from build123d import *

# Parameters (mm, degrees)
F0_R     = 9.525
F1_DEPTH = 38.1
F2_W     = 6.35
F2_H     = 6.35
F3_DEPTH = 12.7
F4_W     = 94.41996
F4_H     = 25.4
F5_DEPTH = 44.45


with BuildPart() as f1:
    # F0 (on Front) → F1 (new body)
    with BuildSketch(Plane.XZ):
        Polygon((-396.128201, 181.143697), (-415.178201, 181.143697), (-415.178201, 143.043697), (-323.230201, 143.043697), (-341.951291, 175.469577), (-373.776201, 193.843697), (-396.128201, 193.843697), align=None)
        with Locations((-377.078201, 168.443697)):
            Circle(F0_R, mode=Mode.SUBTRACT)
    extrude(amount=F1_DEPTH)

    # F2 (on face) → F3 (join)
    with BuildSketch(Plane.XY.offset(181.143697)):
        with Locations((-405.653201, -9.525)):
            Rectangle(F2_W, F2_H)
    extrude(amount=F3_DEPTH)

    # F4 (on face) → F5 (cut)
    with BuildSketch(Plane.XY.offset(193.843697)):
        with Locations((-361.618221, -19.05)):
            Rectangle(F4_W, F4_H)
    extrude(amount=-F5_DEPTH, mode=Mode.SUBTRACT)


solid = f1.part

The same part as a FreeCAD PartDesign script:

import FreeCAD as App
import Part
import Sketcher

V = App.Vector
Q = App.Units.Quantity


def add_polygon(sketch, points):
    """Adds a closed chain of lines whose ends are joined by coincident constraints."""
    first, n = sketch.GeometryCount, len(points)
    for a, b in zip(points, points[1:] + points[:1]):
        sketch.addGeometry(Part.LineSegment(App.Vector(*a, 0), App.Vector(*b, 0)), False)
    for i in range(n):
        sketch.addConstraint(Sketcher.Constraint("Coincident", first + i, 2, first + (i + 1) % n, 1))

doc = App.newDocument("Part")
body = doc.addObject("PartDesign::Body", "Body")

# Sketch on XZ plane
sketch1 = doc.addObject("Sketcher::SketchObject", "Sketch")
body.addObject(sketch1)
sketch1.AttachmentSupport = (doc.XZ_Plane, [""])
sketch1.MapMode = "FlatFace"
add_polygon(sketch1, [(-396, 181), (-415, 181), (-415, 143), (-323, 143), (-342, 175), (-374, 194), (-396, 194)])  # lines 0-6
sketch1.addGeometry(Part.Circle(V(-377, 168, 0), V(0, 0, 1), 10), False)  # 7
sketch1.addConstraint(Sketcher.Constraint("Horizontal", 0))
sketch1.addConstraint(Sketcher.Constraint("Vertical", 1))
sketch1.addConstraint(Sketcher.Constraint("Horizontal", 2))
sketch1.addConstraint(Sketcher.Constraint("Horizontal", 5))
sketch1.addConstraint(Sketcher.Constraint("Vertical", 6))
sketch1.addConstraint(Sketcher.Constraint("Diameter", 7, Q("0.75 in")))
sketch1.addConstraint(Sketcher.Constraint("DistanceY", 1, 2, 1, 1, Q("1.5 in")))
sketch1.addConstraint(Sketcher.Constraint("DistanceY", 6, 2, 6, 1, Q("0.5 in")))
sketch1.addConstraint(Sketcher.Constraint("Angle", 3, Q("119.999999 deg")))
sketch1.addConstraint(Sketcher.Constraint("Angle", 4, Q("150 deg")))
sketch1.addConstraint(Sketcher.Constraint("DistanceY", 1, 2, 7, 3, Q("1 in")))
sketch1.addConstraint(Sketcher.Constraint("DistanceX", 0, 2, 0, 1, Q("0.75 in")))
sketch1.addConstraint(Sketcher.Constraint("DistanceX", 2, 1, 2, 2, Q("3.62 in")))
sketch1.addConstraint(Sketcher.Constraint("DistanceX", 5, 2, 5, 1, Q("0.88 in")))
sketch1.addConstraint(Sketcher.Constraint("DistanceX", 0, 2, 7, 3, Q("1.5 in")))
sketch1.addConstraint(Sketcher.Constraint("DistanceX", 7, 3, -1, 1, Q("377.078201 mm")))
sketch1.addConstraint(Sketcher.Constraint("DistanceY", -1, 1, 7, 3, Q("168.443697 mm")))
pad1 = doc.addObject("PartDesign::Pad", "Pad")
body.addObject(pad1)
pad1.Profile = sketch1
pad1.Length = Q("1.5 in")

# Sketch on XY plane
sketch2 = doc.addObject("Sketcher::SketchObject", "Sketch001")
body.addObject(sketch2)
sketch2.AttachmentSupport = (doc.XY_Plane, [""])
sketch2.MapMode = "FlatFace"
sketch2.AttachmentOffset = App.Placement(V(0, 0, 181.143697), App.Rotation())
add_polygon(sketch2, [(-409, -6), (-409, -13), (-402, -13), (-402, -6)])  # lines 0-3
sketch2.addConstraint(Sketcher.Constraint("Vertical", 0))
sketch2.addConstraint(Sketcher.Constraint("Horizontal", 1))
sketch2.addConstraint(Sketcher.Constraint("Vertical", 2))
sketch2.addConstraint(Sketcher.Constraint("Horizontal", 3))
sketch2.addConstraint(Sketcher.Constraint("Equal", 3, 0))
sketch2.addConstraint(Sketcher.Constraint("DistanceX", 1, 1, 1, 2, Q("0.25 in")))
sketch2.addConstraint(Sketcher.Constraint("DistanceY", 0, 2, -1, 1, Q("0.5 in")))
sketch2.addConstraint(Sketcher.Constraint("DistanceX", 0, 2, -1, 1, Q("408.828201 mm")))
pad2 = doc.addObject("PartDesign::Pad", "Pad001")
body.addObject(pad2)
pad2.Profile = sketch2
pad2.Length = Q("0.5 in")

# Sketch on XY plane
sketch3 = doc.addObject("Sketcher::SketchObject", "Sketch002")
body.addObject(sketch3)
sketch3.AttachmentSupport = (doc.XY_Plane, [""])
sketch3.MapMode = "FlatFace"
sketch3.AttachmentOffset = App.Placement(V(0, 0, 193.843697), App.Rotation())
add_polygon(sketch3, [(-409, -6), (-409, -32), (-314, -32), (-314, -6)])  # lines 0-3
sketch3.addConstraint(Sketcher.Constraint("Vertical", 0))
sketch3.addConstraint(Sketcher.Constraint("Horizontal", 1))
sketch3.addConstraint(Sketcher.Constraint("Vertical", 2))
sketch3.addConstraint(Sketcher.Constraint("Horizontal", 3))
sketch3.addConstraint(Sketcher.Constraint("DistanceY", 0, 2, 0, 1, Q("1 in")))
sketch3.addConstraint(Sketcher.Constraint("DistanceY", 0, 2, -1, 1, Q("1.25 in")))
sketch3.addConstraint(Sketcher.Constraint("DistanceX", 1, 1, 1, 2, Q("94.41996 mm")))
sketch3.addConstraint(Sketcher.Constraint("DistanceX", 0, 2, -1, 1, Q("408.828201 mm")))
pocket1 = doc.addObject("PartDesign::Pocket", "Pocket")
body.addObject(pocket1)
pocket1.Profile = sketch3
pocket1.Length = Q("1.75 in")

doc.recompute()
